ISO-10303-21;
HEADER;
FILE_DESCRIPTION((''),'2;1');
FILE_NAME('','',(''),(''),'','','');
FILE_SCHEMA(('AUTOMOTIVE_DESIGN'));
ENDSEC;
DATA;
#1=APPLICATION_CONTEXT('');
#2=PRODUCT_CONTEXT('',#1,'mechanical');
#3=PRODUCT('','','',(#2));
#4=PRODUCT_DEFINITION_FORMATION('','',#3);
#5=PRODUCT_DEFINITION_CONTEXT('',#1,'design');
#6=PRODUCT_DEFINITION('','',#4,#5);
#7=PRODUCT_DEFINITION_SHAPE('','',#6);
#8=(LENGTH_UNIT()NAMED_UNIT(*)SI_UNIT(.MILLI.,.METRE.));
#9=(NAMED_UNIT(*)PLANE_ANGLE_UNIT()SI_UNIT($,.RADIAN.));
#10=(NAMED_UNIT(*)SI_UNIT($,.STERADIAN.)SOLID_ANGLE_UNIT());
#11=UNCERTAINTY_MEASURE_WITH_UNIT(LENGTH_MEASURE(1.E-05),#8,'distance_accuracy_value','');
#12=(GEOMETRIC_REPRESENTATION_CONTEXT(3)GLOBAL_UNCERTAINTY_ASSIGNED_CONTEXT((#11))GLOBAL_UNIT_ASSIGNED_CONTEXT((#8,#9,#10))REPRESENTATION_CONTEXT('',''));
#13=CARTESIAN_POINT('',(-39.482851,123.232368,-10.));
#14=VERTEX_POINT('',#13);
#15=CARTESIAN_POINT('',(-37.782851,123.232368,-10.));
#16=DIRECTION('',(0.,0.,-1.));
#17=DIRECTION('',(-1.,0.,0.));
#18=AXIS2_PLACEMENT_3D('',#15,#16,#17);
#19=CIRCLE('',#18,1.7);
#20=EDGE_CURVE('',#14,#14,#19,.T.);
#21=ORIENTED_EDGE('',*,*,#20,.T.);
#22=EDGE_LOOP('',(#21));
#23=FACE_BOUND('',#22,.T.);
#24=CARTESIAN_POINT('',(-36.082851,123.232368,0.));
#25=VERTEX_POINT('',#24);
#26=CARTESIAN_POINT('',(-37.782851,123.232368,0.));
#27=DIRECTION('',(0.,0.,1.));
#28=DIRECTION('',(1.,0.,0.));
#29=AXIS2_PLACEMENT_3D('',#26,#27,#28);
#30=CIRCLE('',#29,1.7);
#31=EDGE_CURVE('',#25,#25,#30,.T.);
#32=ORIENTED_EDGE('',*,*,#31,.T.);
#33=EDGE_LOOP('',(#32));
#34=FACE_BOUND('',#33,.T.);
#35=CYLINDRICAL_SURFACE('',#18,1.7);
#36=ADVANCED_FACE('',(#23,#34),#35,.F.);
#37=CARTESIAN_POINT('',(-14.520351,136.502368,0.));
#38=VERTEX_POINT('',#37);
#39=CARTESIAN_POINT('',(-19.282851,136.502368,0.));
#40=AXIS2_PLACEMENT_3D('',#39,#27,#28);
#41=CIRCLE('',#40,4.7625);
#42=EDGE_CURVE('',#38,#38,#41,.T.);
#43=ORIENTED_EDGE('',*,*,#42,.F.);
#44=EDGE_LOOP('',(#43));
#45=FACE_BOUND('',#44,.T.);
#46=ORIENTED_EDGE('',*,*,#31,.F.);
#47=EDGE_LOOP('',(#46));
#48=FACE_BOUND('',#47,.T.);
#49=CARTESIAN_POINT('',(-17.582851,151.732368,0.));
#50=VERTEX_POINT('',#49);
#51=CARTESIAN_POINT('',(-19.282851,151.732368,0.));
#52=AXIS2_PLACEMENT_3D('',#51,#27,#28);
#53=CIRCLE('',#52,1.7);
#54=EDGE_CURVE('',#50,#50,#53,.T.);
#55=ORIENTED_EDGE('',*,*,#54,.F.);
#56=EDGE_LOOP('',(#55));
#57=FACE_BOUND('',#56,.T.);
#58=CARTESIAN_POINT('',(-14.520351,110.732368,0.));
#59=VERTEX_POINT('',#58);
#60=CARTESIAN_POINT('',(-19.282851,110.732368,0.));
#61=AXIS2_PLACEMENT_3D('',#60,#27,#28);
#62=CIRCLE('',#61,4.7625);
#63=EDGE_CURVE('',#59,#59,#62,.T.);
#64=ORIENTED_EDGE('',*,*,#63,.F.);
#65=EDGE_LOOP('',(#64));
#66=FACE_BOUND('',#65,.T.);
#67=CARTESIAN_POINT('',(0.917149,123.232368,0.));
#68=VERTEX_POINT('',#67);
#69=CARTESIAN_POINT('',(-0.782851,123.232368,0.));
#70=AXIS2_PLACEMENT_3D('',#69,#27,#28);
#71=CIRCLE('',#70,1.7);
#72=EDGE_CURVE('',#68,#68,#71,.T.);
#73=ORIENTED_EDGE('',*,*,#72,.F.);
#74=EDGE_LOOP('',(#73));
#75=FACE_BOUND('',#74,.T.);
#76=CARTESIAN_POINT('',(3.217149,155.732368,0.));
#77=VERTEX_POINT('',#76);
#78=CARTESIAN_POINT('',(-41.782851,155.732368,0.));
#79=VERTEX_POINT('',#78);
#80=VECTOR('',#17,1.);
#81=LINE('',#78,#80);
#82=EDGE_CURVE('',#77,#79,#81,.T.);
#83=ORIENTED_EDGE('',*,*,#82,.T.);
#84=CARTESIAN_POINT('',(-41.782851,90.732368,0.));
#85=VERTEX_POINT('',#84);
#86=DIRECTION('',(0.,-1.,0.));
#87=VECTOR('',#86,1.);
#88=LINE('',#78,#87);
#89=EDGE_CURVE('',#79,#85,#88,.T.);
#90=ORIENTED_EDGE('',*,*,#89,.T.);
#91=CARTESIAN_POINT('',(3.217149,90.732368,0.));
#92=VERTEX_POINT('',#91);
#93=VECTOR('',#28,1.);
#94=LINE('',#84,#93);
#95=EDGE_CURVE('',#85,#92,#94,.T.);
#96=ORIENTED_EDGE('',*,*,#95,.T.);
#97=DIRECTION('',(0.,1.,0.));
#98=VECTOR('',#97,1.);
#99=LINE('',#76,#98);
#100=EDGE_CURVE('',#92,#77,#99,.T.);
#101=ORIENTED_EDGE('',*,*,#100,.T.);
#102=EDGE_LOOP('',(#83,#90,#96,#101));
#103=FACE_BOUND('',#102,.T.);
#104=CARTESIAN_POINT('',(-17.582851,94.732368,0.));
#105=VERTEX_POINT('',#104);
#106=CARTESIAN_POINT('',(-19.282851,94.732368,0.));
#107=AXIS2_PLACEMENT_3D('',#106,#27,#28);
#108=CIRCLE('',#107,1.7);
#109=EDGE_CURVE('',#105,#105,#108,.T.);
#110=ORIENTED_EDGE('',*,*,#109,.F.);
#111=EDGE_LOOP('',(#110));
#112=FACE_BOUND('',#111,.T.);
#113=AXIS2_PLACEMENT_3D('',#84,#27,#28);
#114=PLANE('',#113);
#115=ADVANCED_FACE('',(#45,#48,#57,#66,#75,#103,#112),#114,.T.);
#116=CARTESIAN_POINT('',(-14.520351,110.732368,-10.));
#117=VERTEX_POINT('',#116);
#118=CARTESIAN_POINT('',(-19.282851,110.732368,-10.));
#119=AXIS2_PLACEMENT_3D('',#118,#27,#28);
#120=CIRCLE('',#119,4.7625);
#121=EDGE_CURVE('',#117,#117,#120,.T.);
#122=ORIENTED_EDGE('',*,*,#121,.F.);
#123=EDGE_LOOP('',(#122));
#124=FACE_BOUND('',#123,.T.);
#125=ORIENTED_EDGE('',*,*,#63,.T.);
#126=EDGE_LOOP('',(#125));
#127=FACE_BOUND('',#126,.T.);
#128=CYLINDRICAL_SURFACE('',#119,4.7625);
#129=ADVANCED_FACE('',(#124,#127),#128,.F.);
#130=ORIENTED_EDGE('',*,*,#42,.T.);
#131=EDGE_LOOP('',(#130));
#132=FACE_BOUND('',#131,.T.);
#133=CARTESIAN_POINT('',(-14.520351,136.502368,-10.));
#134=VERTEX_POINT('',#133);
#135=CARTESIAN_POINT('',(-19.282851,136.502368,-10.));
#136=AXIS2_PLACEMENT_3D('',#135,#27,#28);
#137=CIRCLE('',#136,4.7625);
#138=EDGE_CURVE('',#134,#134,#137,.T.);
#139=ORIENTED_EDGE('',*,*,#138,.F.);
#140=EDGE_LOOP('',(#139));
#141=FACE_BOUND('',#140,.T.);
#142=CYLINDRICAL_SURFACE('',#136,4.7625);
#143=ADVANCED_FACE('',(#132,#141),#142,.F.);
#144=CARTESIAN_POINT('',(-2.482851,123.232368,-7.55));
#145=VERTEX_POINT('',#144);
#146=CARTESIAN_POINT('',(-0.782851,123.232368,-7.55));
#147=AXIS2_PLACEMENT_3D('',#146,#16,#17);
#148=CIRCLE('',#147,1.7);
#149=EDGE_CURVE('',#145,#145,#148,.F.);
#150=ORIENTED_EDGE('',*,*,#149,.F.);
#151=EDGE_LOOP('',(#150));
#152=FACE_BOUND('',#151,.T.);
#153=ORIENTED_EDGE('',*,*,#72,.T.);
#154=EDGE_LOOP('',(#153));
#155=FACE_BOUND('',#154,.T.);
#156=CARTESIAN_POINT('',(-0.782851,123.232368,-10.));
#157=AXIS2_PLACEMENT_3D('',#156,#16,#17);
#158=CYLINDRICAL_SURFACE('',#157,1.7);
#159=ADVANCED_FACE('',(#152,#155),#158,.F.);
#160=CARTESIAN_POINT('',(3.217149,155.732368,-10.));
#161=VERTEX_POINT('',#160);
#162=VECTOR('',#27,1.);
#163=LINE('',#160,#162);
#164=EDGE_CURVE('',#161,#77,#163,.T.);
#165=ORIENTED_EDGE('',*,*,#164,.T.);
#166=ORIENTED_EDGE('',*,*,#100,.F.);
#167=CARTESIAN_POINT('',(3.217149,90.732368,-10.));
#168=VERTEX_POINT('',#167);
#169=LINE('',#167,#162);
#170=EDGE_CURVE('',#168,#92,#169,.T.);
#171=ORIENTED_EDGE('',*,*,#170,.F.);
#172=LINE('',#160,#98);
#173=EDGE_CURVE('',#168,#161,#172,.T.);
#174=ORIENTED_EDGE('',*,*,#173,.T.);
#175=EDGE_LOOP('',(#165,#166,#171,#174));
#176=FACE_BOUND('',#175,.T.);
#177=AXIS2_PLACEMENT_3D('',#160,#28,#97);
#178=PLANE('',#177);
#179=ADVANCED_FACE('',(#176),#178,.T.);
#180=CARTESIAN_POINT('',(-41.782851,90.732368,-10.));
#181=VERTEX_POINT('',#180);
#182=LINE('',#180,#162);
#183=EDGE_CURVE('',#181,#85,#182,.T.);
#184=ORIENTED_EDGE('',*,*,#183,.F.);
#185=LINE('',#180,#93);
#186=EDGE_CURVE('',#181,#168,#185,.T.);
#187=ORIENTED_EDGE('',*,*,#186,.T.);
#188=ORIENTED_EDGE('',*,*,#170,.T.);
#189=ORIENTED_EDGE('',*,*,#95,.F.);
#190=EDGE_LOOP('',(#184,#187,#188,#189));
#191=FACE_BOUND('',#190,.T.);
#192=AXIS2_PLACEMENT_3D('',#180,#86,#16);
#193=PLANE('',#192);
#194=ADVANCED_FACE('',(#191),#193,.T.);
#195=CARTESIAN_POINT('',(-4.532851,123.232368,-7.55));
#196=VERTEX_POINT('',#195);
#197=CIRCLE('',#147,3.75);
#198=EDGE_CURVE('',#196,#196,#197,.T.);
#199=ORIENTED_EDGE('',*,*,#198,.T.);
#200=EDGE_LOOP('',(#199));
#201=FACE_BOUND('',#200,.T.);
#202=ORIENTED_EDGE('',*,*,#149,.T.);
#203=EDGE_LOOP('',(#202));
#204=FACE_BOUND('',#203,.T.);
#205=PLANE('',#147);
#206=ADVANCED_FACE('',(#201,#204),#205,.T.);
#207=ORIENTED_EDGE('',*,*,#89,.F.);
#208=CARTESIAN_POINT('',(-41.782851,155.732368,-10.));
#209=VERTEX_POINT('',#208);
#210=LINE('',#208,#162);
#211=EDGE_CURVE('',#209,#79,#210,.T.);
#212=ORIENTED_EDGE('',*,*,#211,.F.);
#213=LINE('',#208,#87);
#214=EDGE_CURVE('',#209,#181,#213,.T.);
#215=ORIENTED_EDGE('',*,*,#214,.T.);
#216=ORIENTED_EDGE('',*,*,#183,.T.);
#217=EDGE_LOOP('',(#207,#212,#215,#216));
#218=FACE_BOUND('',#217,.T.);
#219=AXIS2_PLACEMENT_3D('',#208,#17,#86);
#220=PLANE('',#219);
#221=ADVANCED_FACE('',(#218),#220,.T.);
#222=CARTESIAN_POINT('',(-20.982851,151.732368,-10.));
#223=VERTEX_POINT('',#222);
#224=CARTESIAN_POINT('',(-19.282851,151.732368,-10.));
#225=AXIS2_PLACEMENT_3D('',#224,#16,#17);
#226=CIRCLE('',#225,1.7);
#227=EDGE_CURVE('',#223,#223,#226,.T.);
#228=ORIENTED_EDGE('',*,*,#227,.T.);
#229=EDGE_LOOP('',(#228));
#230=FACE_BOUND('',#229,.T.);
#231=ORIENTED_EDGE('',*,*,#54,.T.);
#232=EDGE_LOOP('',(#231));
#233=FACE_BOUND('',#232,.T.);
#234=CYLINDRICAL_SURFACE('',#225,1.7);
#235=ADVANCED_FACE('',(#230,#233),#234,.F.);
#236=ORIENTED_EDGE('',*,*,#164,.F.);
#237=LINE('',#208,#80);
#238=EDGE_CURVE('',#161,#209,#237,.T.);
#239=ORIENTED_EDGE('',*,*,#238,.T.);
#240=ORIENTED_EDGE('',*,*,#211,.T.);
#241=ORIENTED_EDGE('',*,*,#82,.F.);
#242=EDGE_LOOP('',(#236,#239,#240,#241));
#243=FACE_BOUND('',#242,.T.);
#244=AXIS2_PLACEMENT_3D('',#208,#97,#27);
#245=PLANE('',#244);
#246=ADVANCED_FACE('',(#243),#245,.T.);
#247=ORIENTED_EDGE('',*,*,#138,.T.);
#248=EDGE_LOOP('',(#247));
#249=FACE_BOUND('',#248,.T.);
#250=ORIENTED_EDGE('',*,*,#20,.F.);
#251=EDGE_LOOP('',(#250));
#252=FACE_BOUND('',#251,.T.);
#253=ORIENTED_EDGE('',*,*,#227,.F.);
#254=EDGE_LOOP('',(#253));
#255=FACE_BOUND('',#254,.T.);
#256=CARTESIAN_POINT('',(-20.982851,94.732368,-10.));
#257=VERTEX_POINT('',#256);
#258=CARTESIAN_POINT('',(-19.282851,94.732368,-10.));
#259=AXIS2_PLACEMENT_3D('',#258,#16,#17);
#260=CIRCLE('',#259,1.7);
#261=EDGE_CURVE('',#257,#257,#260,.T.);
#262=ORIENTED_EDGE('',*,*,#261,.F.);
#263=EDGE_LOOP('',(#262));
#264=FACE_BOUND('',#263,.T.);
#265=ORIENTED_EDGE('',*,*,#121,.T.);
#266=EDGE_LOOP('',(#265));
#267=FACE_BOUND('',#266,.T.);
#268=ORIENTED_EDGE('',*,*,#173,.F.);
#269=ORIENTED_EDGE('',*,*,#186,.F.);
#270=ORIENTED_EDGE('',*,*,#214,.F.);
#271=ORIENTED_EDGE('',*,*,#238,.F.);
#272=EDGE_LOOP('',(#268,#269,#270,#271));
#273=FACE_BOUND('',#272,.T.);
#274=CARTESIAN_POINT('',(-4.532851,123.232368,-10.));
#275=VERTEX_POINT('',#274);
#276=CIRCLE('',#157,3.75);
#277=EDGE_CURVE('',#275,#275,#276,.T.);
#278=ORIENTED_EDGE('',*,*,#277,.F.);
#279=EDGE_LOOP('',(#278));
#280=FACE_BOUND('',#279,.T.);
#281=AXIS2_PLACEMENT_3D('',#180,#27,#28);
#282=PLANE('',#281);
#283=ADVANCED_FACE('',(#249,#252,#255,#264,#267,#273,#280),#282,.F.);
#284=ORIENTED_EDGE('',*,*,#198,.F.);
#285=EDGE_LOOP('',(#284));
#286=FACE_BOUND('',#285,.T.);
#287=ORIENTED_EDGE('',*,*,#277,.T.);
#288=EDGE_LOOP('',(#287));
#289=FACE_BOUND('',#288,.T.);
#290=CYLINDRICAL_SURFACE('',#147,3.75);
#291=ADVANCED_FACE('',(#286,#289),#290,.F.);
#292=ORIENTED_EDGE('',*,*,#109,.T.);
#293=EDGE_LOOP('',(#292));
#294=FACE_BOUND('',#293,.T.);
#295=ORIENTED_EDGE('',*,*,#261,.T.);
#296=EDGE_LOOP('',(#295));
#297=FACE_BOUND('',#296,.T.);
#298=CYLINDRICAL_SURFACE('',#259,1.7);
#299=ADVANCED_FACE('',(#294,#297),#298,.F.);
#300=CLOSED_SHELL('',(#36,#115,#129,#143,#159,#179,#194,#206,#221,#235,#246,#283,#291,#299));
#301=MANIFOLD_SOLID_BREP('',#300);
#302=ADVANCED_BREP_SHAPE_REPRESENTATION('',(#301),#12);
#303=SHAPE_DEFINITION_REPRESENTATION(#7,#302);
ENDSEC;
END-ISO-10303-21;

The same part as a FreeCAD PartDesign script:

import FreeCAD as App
import Part
import Sketcher
from FreeCAD import Vector
Q = App.Units.Quantity


def add_polygon(sketch, points):
    """Adds a closed chain of lines whose ends are joined by coincident constraints."""
    first, n = sketch.GeometryCount, len(points)
    for a, b in zip(points, points[1:] + points[:1]):
        sketch.addGeometry(Part.LineSegment(App.Vector(*a, 0), App.Vector(*b, 0)), False)
    for i in range(n):
        sketch.addConstraint(Sketcher.Constraint("Coincident", first + i, 2, first + (i + 1) % n, 1))

doc = App.newDocument("Part")
body = doc.addObject("PartDesign::Body", "Body")

# Sketch on XY plane
sketch1 = doc.addObject("Sketcher::SketchObject", "Sketch")
body.addObject(sketch1)
sketch1.AttachmentSupport = (doc.XY_Plane, [""])
sketch1.MapMode = "FlatFace"
add_polygon(sketch1, [(-42, 156), (-42, 91), (3, 91), (3, 156)])  # lines 0-3
sketch1.addConstraint([
    Sketcher.Constraint("Vertical", 0),
    Sketcher.Constraint("Horizontal", 1),
    Sketcher.Constraint("Vertical", 2),
    Sketcher.Constraint("Horizontal", 3),
    Sketcher.Constraint("DistanceX", 1, 1, 1, 2, Q("45 mm")),
    Sketcher.Constraint("DistanceY", 0, 2, 0, 1, Q("65 mm")),
    Sketcher.Constraint("DistanceX", 0, 2, -1, 1, Q("41.782851 mm")),
    Sketcher.Constraint("DistanceY", -1, 1, 0, 2, Q("90.732368 mm")),
])
pad1 = doc.addObject("PartDesign::Pad", "Pad")
body.addObject(pad1)
pad1.Profile = sketch1
pad1.Length = 10
pad1.Reversed = True

# Sketch on XY plane
sketch2 = doc.addObject("Sketcher::SketchObject", "Sketch001")
body.addObject(sketch2)
sketch2.AttachmentSupport = (doc.XY_Plane, [""])
sketch2.MapMode = "FlatFace"
sketch2.addGeometry([
    Part.Circle(Vector(-19.3, 136.5, 0), Vector(0, 0, 1), 4.8),
    Part.Circle(Vector(-19.3, 110.7, 0), Vector(0, 0, 1), 4.8),
], False)
sketch2.addConstraint([
    Sketcher.Constraint("Equal", 0, 1),
    Sketcher.Constraint("Vertical", 0, 3, 1, 3),
    Sketcher.Constraint("Diameter", 0, Q("9.525 mm")),
    Sketcher.Constraint("DistanceY", 1, 3, 0, 3, Q("25.77 mm")),
    Sketcher.Constraint("DistanceX", 0, 3, -1, 1, Q("19.282851 mm")),
    Sketcher.Constraint("DistanceY", -1, 1, 0, 3, Q("136.502368 mm")),
])
pocket1 = doc.addObject("PartDesign::Pocket", "Pocket")
body.addObject(pocket1)
pocket1.Profile = sketch2
pocket1.Type = "ThroughAll"

# Sketch on XY plane
sketch3 = doc.addObject("Sketcher::SketchObject", "Sketch002")
body.addObject(sketch3)
sketch3.AttachmentSupport = (doc.XY_Plane, [""])
sketch3.MapMode = "FlatFace"
sketch3.AttachmentOffset = App.Placement(Vector(0, 0, -10), App.Rotation())
sketch3.addGeometry([
    Part.Circle(Vector(-19.3, 94.7, 0), Vector(0, 0, 1), 1.7),
    Part.Circle(Vector(-19.3, 151.7, 0), Vector(0, 0, 1), 1.7),
    Part.Circle(Vector(-0.8, 123.2, 0), Vector(0, 0, 1), 1.7),
    Part.Circle(Vector(-37.8, 123.2, 0), Vector(0, 0, 1), 1.7),
], False)
sketch3.addConstraint([
    Sketcher.Constraint("Equal", 0, 1),
    Sketcher.Constraint("Equal", 1, 2),
    Sketcher.Constraint("Equal", 2, 3),
    Sketcher.Constraint("Horizontal", 2, 3, 3, 3),
    Sketcher.Constraint("Vertical", 0, 3, 1, 3),
    Sketcher.Constraint("Diameter", 0, Q("3.4 mm")),
    Sketcher.Constraint("DistanceY", 0, 3, 1, 3, Q("57 mm")),
    Sketcher.Constraint("DistanceX", 3, 3, 2, 3, Q("37 mm")),
    Sketcher.Constraint("DistanceX", 0, 3, 2, 3, Q("18.5 mm")),
    Sketcher.Constraint("DistanceY", 0, 3, 2, 3, Q("28.5 mm")),
    Sketcher.Constraint("DistanceX", 0, 3, -1, 1, Q("19.282851 mm")),
    Sketcher.Constraint("DistanceY", -1, 1, 0, 3, Q("94.732368 mm")),
])
doc.recompute()
hole = doc.addObject("PartDesign::Hole", "Hole")
body.addObject(hole)
hole.Profile = sketch3
hole.ThreadType = "None"
hole.Diameter = 3.4
hole.DepthType = "ThroughAll"
hole.Reversed = True

# Sketch on XY plane
sketch4 = doc.addObject("Sketcher::SketchObject", "Sketch003")
body.addObject(sketch4)
sketch4.AttachmentSupport = (doc.XY_Plane, [""])
sketch4.MapMode = "FlatFace"
sketch4.AttachmentOffset = App.Placement(Vector(0, 0, -10), App.Rotation())
sketch4.addGeometry(Part.Circle(Vector(-0.8, 123.2, 0), Vector(0, 0, 1), 3.8), False)
sketch4.addConstraint([
    Sketcher.Constraint("Diameter", 0, Q("7.5 mm")),
    Sketcher.Constraint("DistanceX", 0, 3, -1, 1, Q("0.782851 mm")),
    Sketcher.Constraint("DistanceY", -1, 1, 0, 3, Q("123.232368 mm")),
])
pocket2 = doc.addObject("PartDesign::Pocket", "Pocket001")
body.addObject(pocket2)
pocket2.Profile = sketch4
pocket2.Length = 2.45
pocket2.Reversed = True

doc.recompute()
